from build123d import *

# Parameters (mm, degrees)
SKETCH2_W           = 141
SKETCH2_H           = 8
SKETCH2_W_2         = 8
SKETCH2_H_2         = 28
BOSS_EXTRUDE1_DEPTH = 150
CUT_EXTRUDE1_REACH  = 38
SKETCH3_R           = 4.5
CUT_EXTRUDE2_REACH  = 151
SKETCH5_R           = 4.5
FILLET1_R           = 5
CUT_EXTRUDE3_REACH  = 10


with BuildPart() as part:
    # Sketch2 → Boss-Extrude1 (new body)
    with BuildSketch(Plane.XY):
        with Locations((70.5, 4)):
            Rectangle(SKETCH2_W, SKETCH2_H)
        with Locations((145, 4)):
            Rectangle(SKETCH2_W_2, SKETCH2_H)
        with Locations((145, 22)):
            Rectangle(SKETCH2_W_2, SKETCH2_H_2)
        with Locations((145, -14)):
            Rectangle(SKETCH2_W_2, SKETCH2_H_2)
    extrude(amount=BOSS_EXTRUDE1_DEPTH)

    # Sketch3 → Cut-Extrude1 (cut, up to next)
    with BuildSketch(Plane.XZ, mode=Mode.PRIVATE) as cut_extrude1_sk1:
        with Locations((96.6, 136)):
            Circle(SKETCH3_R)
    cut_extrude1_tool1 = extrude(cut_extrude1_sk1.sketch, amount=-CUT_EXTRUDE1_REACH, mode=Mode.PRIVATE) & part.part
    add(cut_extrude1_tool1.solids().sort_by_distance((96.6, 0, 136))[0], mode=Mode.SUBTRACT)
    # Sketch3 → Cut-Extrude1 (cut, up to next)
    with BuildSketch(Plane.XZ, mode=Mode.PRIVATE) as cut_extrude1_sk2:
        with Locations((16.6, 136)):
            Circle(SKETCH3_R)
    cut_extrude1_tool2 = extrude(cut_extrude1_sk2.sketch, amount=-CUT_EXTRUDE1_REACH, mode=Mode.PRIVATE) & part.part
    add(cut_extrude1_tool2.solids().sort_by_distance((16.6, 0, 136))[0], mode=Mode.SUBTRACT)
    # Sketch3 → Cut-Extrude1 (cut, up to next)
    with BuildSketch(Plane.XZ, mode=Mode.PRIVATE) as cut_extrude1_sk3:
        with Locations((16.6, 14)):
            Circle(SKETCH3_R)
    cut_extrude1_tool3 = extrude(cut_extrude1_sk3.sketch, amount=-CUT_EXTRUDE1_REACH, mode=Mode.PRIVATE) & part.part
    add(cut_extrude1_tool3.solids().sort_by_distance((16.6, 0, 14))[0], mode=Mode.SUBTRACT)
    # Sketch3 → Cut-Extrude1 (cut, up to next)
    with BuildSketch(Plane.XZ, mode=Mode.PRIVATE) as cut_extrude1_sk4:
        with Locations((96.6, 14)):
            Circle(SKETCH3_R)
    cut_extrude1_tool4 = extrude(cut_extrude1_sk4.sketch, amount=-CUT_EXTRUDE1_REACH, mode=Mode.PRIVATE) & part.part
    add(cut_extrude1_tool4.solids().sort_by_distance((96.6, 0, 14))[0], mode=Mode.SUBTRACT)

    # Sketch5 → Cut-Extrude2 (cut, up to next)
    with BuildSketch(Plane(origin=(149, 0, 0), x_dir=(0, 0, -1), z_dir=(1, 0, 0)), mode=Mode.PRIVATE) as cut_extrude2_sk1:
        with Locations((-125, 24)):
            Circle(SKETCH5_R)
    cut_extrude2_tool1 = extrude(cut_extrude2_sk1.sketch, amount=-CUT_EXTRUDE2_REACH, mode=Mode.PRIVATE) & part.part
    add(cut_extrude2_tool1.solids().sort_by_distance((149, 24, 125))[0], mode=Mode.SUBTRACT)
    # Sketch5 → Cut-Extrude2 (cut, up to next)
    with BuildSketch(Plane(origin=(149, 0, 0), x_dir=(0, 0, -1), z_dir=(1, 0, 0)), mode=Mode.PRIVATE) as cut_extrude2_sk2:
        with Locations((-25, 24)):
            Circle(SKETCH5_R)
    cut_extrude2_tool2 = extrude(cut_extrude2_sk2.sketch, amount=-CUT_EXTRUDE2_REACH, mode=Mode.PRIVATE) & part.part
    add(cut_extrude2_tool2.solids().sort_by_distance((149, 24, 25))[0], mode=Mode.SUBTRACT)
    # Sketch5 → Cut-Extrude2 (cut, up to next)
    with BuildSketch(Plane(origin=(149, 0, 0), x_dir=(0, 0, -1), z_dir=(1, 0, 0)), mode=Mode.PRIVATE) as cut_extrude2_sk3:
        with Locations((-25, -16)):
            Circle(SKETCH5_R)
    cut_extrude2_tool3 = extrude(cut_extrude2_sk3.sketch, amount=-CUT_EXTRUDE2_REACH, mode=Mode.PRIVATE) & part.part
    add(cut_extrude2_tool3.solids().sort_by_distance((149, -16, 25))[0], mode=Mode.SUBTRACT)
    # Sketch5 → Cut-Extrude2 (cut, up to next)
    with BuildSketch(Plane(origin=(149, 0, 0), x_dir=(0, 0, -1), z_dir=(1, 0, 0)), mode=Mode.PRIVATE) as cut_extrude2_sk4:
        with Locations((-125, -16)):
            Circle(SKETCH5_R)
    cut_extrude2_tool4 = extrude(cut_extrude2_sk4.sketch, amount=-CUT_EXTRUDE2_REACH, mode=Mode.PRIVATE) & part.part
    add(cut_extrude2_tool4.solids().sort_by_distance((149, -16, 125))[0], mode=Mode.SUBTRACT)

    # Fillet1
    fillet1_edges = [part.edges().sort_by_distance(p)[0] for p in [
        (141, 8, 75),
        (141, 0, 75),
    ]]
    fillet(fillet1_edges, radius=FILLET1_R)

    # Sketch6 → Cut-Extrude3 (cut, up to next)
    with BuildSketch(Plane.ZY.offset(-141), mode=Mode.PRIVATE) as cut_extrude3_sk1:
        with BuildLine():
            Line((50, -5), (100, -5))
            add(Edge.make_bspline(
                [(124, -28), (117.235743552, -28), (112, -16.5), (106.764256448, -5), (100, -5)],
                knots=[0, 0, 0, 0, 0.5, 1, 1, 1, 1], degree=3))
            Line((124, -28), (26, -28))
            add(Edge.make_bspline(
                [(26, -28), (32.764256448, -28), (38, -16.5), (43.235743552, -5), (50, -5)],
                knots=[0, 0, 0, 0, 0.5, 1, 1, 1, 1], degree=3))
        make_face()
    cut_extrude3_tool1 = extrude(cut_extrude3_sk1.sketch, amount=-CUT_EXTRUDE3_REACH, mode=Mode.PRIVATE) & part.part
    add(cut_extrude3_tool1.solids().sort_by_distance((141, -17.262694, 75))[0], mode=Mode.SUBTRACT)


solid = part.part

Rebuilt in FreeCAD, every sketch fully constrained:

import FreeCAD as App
import Part
import Sketcher

V = App.Vector
Q = App.Units.Quantity


def edges_at(feature, points):
    """Names of the edges that pass closest to the given points."""
    edges = feature.Shape.Edges
    near = lambda p: min(range(len(edges)), key=lambda i: edges[i].distToShape(Part.Vertex(*p))[0])
    return sorted({f"Edge{near(p) + 1}" for p in points})


def add_polygon(sketch, points):
    """Adds a closed chain of lines whose ends are joined by coincident constraints."""
    first, n = sketch.GeometryCount, len(points)
    for a, b in zip(points, points[1:] + points[:1]):
        sketch.addGeometry(Part.LineSegment(App.Vector(*a, 0), App.Vector(*b, 0)), False)
    for i in range(n):
        sketch.addConstraint(Sketcher.Constraint("Coincident", first + i, 2, first + (i + 1) % n, 1))

doc = App.newDocument("Part")
body = doc.addObject("PartDesign::Body", "Body")

# Sketch on XY plane
sketch1 = doc.addObject("Sketcher::SketchObject", "Sketch")
body.addObject(sketch1)
sketch1.AttachmentSupport = (doc.XY_Plane, [""])
sketch1.MapMode = "FlatFace"
add_polygon(sketch1, [(0, 8), (0, 0), (141, 0), (141, -28), (149, -28), (149, 36), (141, 36), (141, 8)])  # lines 0-7
sketch1.addConstraint([
    Sketcher.Constraint("Vertical", 0),
    Sketcher.Constraint("Horizontal", 1),
    Sketcher.Constraint("Vertical", 2),
    Sketcher.Constraint("Horizontal", 3),
    Sketcher.Constraint("Vertical", 4),
    Sketcher.Constraint("Horizontal", 5),
    Sketcher.Constraint("Vertical", 6),
    Sketcher.Constraint("Horizontal", 7),
    Sketcher.Constraint("Coincident", 0, 2, -1, 1),
    Sketcher.Constraint("Vertical", 2, 2, 5, 2),
    Sketcher.Constraint("Equal", 5, 0),
    Sketcher.Constraint("Equal", 2, 6),
    Sketcher.Constraint("DistanceX", 1, 1, 1, 2, Q("141 mm")),
    Sketcher.Constraint("DistanceX", 3, 1, 3, 2, Q("8 mm")),
    Sketcher.Constraint("DistanceY", 2, 2, 2, 1, Q("28 mm")),
])
pad1 = doc.addObject("PartDesign::Pad", "Pad")
body.addObject(pad1)
pad1.Profile = sketch1
pad1.Length = 150

# Sketch on XZ plane
sketch2 = doc.addObject("Sketcher::SketchObject", "Sketch001")
body.addObject(sketch2)
sketch2.AttachmentSupport = (doc.XZ_Plane, [""])
sketch2.MapMode = "FlatFace"
sketch2.addGeometry(Part.Circle(V(96.6, 136, 0), V(0, 0, 1), 4.5), False)
sketch2.addConstraint([
    Sketcher.Constraint("Diameter", 0, Q("9 mm")),
    Sketcher.Constraint("DistanceY", -1, 1, 0, 3, Q("136 mm")),
    Sketcher.Constraint("DistanceX", -1, 1, 0, 3, Q("96.6 mm")),
])
pocket1 = doc.addObject("PartDesign::Pocket", "Pocket")
body.addObject(pocket1)
pocket1.Profile = sketch2
pocket1.Type = "UpToFirst"

# Sketch on XZ plane
sketch3 = doc.addObject("Sketcher::SketchObject", "Sketch002")
body.addObject(sketch3)
sketch3.AttachmentSupport = (doc.XZ_Plane, [""])
sketch3.MapMode = "FlatFace"
sketch3.addGeometry(Part.Circle(V(16.6, 136, 0), V(0, 0, 1), 4.5), False)
sketch3.addConstraint([
    Sketcher.Constraint("Diameter", 0, Q("9 mm")),
    Sketcher.Constraint("DistanceY", -1, 1, 0, 3, Q("136 mm")),
    Sketcher.Constraint("DistanceX", -1, 1, 0, 3, Q("16.6 mm")),
])
pocket2 = doc.addObject("PartDesign::Pocket", "Pocket001")
body.addObject(pocket2)
pocket2.Profile = sketch3
pocket2.Type = "UpToFirst"

# Sketch on XZ plane
sketch4 = doc.addObject("Sketcher::SketchObject", "Sketch003")
body.addObject(sketch4)
sketch4.AttachmentSupport = (doc.XZ_Plane, [""])
sketch4.MapMode = "FlatFace"
sketch4.addGeometry(Part.Circle(V(16.6, 14, 0), V(0, 0, 1), 4.5), False)
sketch4.addConstraint([
    Sketcher.Constraint("Diameter", 0, Q("9 mm")),
    Sketcher.Constraint("DistanceY", -1, 1, 0, 3, Q("14 mm")),
    Sketcher.Constraint("DistanceX", -1, 1, 0, 3, Q("16.6 mm")),
])
pocket3 = doc.addObject("PartDesign::Pocket", "Pocket002")
body.addObject(pocket3)
pocket3.Profile = sketch4
pocket3.Type = "UpToFirst"

# Sketch on XZ plane
sketch5 = doc.addObject("Sketcher::SketchObject", "Sketch004")
body.addObject(sketch5)
sketch5.AttachmentSupport = (doc.XZ_Plane, [""])
sketch5.MapMode = "FlatFace"
sketch5.addGeometry(Part.Circle(V(96.6, 14, 0), V(0, 0, 1), 4.5), False)
sketch5.addConstraint([
    Sketcher.Constraint("Diameter", 0, Q("9 mm")),
    Sketcher.Constraint("DistanceY", -1, 1, 0, 3, Q("14 mm")),
    Sketcher.Constraint("DistanceX", -1, 1, 0, 3, Q("96.6 mm")),
])
pocket4 = doc.addObject("PartDesign::Pocket", "Pocket003")
body.addObject(pocket4)
pocket4.Profile = sketch5
pocket4.Type = "UpToFirst"

# Sketch on YZ plane
sketch6 = doc.addObject("Sketcher::SketchObject", "Sketch005")
body.addObject(sketch6)
sketch6.AttachmentSupport = (doc.YZ_Plane, [""])
sketch6.MapMode = "FlatFace"
sketch6.AttachmentOffset = App.Placement(V(0, 0, 149), App.Rotation())
sketch6.addGeometry(Part.Circle(V(24, 125, 0), V(0, 0, 1), 4.5), False)
sketch6.addConstraint([
    Sketcher.Constraint("Diameter", 0, Q("9 mm")),
    Sketcher.Constraint("DistanceX", -1, 1, 0, 3, Q("24 mm")),
    Sketcher.Constraint("DistanceY", -1, 1, 0, 3, Q("125 mm")),
])
pocket5 = doc.addObject("PartDesign::Pocket", "Pocket004")
body.addObject(pocket5)
pocket5.Profile = sketch6
pocket5.Type = "UpToFirst"

# Sketch on YZ plane
sketch7 = doc.addObject("Sketcher::SketchObject", "Sketch006")
body.addObject(sketch7)
sketch7.AttachmentSupport = (doc.YZ_Plane, [""])
sketch7.MapMode = "FlatFace"
sketch7.AttachmentOffset = App.Placement(V(0, 0, 149), App.Rotation())
sketch7.addGeometry(Part.Circle(V(24, 25, 0), V(0, 0, 1), 4.5), False)
sketch7.addConstraint([
    Sketcher.Constraint("Diameter", 0, Q("9 mm")),
    Sketcher.Constraint("DistanceX", -1, 1, 0, 3, Q("24 mm")),
    Sketcher.Constraint("DistanceY", -1, 1, 0, 3, Q("25 mm")),
])
pocket6 = doc.addObject("PartDesign::Pocket", "Pocket005")
body.addObject(pocket6)
pocket6.Profile = sketch7
pocket6.Type = "UpToFirst"

# Sketch on YZ plane
sketch8 = doc.addObject("Sketcher::SketchObject", "Sketch007")
body.addObject(sketch8)
sketch8.AttachmentSupport = (doc.YZ_Plane, [""])
sketch8.MapMode = "FlatFace"
sketch8.AttachmentOffset = App.Placement(V(0, 0, 149), App.Rotation())
sketch8.addGeometry(Part.Circle(V(-16, 25, 0), V(0, 0, 1), 4.5), False)
sketch8.addConstraint([
    Sketcher.Constraint("Diameter", 0, Q("9 mm")),
    Sketcher.Constraint("DistanceX", 0, 3, -1, 1, Q("16 mm")),
    Sketcher.Constraint("DistanceY", -1, 1, 0, 3, Q("25 mm")),
])
pocket7 = doc.addObject("PartDesign::Pocket", "Pocket006")
body.addObject(pocket7)
pocket7.Profile = sketch8
pocket7.Type = "UpToFirst"

# Sketch on YZ plane
sketch9 = doc.addObject("Sketcher::SketchObject", "Sketch008")
body.addObject(sketch9)
sketch9.AttachmentSupport = (doc.YZ_Plane, [""])
sketch9.MapMode = "FlatFace"
sketch9.AttachmentOffset = App.Placement(V(0, 0, 149), App.Rotation())
sketch9.addGeometry(Part.Circle(V(-16, 125, 0), V(0, 0, 1), 4.5), False)
sketch9.addConstraint([
    Sketcher.Constraint("Diameter", 0, Q("9 mm")),
    Sketcher.Constraint("DistanceX", 0, 3, -1, 1, Q("16 mm")),
    Sketcher.Constraint("DistanceY", -1, 1, 0, 3, Q("125 mm")),
])
pocket8 = doc.addObject("PartDesign::Pocket", "Pocket007")
body.addObject(pocket8)
pocket8.Profile = sketch9
pocket8.Type = "UpToFirst"
doc.recompute()

fillet = doc.addObject("PartDesign::Fillet", "Fillet")
body.addObject(fillet)
fillet.Base = (pocket8, edges_at(pocket8, [(141, 8, 75), (141, 0, 75)]))
fillet.Radius = 5

# Sketch on YZ plane
sketch10 = doc.addObject("Sketcher::SketchObject", "Sketch009")
body.addObject(sketch10)
sketch10.AttachmentSupport = (doc.YZ_Plane, [""])
sketch10.MapMode = "FlatFace"
sketch10.AttachmentOffset = App.Placement(V(0, 0, 141), App.Rotation())
sketch10.addGeometry([
    Part.LineSegment(V(-5, 100, 0), V(-5, 50, 0)),
    Part.BSplineCurve([V(-28, 26, 0), V(-28, 32.764256, 0), V(-16.5, 38, 0), V(-5, 43.235744, 0), V(-5, 50, 0)], [4, 1, 4], [0, 0.5, 1], False, 3, [1, 1, 1, 1, 1], False),
    Part.LineSegment(V(-28, 26, 0), V(-28, 124, 0)),
    Part.BSplineCurve([V(-28, 124, 0), V(-28, 117.235744, 0), V(-16.5, 112, 0), V(-5, 106.764256, 0), V(-5, 100, 0)], [4, 1, 4], [0, 0.5, 1], False, 3, [1, 1, 1, 1, 1], False),
], False)
sketch10.addConstraint([
    Sketcher.Constraint("Block", 1),
    Sketcher.Constraint("Block", 3),
    Sketcher.Constraint("Coincident", 0, 2, 1, 2),
    Sketcher.Constraint("Coincident", 1, 1, 2, 1),
    Sketcher.Constraint("Coincident", 2, 2, 3, 1),
    Sketcher.Constraint("Coincident", 3, 2, 0, 1),
])
pocket9 = doc.addObject("PartDesign::Pocket", "Pocket008")
body.addObject(pocket9)
pocket9.Profile = sketch10
pocket9.Type = "UpToFirst"
pocket9.Reversed = True

doc.recompute()
